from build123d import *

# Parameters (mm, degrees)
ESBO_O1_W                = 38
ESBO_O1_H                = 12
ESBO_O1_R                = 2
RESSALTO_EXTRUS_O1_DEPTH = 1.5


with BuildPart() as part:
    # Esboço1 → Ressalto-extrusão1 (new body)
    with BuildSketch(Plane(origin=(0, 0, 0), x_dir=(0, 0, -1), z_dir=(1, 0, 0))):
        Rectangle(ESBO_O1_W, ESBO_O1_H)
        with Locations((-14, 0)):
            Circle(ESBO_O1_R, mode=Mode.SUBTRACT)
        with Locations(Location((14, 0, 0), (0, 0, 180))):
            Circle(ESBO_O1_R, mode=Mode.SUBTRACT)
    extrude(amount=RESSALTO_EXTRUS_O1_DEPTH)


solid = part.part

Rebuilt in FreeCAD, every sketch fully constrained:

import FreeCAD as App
import Part
import Sketcher
from FreeCAD import Vector
Q = App.Units.Quantity


def add_polygon(sketch, points):
    """Adds a closed chain of lines whose ends are joined by coincident constraints."""
    first, n = sketch.GeometryCount, len(points)
    for a, b in zip(points, points[1:] + points[:1]):
        sketch.addGeometry(Part.LineSegment(App.Vector(*a, 0), App.Vector(*b, 0)), False)
    for i in range(n):
        sketch.addConstraint(Sketcher.Constraint("Coincident", first + i, 2, first + (i + 1) % n, 1))

doc = App.newDocument("Part")
body = doc.addObject("PartDesign::Body", "Body")

# Sketch on YZ plane
sketch1 = doc.addObject("Sketcher::SketchObject", "Sketch")
body.addObject(sketch1)
sketch1.AttachmentSupport = (doc.YZ_Plane, [""])
sketch1.MapMode = "FlatFace"
add_polygon(sketch1, [(6, 19), (-6, 19), (-6, -19), (6, -19)])  # lines 0-3
sketch1.addGeometry(Part.Circle(Vector(0, 14, 0), Vector(0, 0, 1), 2), False)  # 4
sketch1.addGeometry(Part.Circle(Vector(0, -14, 0), Vector(0, 0, 1), 2), False)  # 5
sketch1.addConstraint(Sketcher.Constraint("Horizontal", 0))
sketch1.addConstraint(Sketcher.Constraint("Vertical", 1))
sketch1.addConstraint(Sketcher.Constraint("Horizontal", 2))
sketch1.addConstraint(Sketcher.Constraint("Vertical", 3))
sketch1.addConstraint(Sketcher.Constraint("Equal", 4, 5))
sketch1.addConstraint(Sketcher.Constraint("Symmetric", 4, 3, 5, 3, -1, 1))
sketch1.addConstraint(Sketcher.Constraint("Symmetric", 0, 2, 2, 2, -1, 1))
sketch1.addConstraint(Sketcher.Constraint("PointOnObject", 4, 3, -2))
sketch1.addConstraint(Sketcher.Constraint("Diameter", 4, Q("4 mm")))
sketch1.addConstraint(Sketcher.Constraint("DistanceX", 0, 2, 0, 1, Q("12 mm")))
sketch1.addConstraint(Sketcher.Constraint("DistanceY", 1, 2, 1, 1, Q("38 mm")))
sketch1.addConstraint(Sketcher.Constraint("DistanceY", -1, 1, 4, 3, Q("14 mm")))
pad1 = doc.addObject("PartDesign::Pad", "Pad")
body.addObject(pad1)
pad1.Profile = sketch1
pad1.Length = 1.5

doc.recompute()
